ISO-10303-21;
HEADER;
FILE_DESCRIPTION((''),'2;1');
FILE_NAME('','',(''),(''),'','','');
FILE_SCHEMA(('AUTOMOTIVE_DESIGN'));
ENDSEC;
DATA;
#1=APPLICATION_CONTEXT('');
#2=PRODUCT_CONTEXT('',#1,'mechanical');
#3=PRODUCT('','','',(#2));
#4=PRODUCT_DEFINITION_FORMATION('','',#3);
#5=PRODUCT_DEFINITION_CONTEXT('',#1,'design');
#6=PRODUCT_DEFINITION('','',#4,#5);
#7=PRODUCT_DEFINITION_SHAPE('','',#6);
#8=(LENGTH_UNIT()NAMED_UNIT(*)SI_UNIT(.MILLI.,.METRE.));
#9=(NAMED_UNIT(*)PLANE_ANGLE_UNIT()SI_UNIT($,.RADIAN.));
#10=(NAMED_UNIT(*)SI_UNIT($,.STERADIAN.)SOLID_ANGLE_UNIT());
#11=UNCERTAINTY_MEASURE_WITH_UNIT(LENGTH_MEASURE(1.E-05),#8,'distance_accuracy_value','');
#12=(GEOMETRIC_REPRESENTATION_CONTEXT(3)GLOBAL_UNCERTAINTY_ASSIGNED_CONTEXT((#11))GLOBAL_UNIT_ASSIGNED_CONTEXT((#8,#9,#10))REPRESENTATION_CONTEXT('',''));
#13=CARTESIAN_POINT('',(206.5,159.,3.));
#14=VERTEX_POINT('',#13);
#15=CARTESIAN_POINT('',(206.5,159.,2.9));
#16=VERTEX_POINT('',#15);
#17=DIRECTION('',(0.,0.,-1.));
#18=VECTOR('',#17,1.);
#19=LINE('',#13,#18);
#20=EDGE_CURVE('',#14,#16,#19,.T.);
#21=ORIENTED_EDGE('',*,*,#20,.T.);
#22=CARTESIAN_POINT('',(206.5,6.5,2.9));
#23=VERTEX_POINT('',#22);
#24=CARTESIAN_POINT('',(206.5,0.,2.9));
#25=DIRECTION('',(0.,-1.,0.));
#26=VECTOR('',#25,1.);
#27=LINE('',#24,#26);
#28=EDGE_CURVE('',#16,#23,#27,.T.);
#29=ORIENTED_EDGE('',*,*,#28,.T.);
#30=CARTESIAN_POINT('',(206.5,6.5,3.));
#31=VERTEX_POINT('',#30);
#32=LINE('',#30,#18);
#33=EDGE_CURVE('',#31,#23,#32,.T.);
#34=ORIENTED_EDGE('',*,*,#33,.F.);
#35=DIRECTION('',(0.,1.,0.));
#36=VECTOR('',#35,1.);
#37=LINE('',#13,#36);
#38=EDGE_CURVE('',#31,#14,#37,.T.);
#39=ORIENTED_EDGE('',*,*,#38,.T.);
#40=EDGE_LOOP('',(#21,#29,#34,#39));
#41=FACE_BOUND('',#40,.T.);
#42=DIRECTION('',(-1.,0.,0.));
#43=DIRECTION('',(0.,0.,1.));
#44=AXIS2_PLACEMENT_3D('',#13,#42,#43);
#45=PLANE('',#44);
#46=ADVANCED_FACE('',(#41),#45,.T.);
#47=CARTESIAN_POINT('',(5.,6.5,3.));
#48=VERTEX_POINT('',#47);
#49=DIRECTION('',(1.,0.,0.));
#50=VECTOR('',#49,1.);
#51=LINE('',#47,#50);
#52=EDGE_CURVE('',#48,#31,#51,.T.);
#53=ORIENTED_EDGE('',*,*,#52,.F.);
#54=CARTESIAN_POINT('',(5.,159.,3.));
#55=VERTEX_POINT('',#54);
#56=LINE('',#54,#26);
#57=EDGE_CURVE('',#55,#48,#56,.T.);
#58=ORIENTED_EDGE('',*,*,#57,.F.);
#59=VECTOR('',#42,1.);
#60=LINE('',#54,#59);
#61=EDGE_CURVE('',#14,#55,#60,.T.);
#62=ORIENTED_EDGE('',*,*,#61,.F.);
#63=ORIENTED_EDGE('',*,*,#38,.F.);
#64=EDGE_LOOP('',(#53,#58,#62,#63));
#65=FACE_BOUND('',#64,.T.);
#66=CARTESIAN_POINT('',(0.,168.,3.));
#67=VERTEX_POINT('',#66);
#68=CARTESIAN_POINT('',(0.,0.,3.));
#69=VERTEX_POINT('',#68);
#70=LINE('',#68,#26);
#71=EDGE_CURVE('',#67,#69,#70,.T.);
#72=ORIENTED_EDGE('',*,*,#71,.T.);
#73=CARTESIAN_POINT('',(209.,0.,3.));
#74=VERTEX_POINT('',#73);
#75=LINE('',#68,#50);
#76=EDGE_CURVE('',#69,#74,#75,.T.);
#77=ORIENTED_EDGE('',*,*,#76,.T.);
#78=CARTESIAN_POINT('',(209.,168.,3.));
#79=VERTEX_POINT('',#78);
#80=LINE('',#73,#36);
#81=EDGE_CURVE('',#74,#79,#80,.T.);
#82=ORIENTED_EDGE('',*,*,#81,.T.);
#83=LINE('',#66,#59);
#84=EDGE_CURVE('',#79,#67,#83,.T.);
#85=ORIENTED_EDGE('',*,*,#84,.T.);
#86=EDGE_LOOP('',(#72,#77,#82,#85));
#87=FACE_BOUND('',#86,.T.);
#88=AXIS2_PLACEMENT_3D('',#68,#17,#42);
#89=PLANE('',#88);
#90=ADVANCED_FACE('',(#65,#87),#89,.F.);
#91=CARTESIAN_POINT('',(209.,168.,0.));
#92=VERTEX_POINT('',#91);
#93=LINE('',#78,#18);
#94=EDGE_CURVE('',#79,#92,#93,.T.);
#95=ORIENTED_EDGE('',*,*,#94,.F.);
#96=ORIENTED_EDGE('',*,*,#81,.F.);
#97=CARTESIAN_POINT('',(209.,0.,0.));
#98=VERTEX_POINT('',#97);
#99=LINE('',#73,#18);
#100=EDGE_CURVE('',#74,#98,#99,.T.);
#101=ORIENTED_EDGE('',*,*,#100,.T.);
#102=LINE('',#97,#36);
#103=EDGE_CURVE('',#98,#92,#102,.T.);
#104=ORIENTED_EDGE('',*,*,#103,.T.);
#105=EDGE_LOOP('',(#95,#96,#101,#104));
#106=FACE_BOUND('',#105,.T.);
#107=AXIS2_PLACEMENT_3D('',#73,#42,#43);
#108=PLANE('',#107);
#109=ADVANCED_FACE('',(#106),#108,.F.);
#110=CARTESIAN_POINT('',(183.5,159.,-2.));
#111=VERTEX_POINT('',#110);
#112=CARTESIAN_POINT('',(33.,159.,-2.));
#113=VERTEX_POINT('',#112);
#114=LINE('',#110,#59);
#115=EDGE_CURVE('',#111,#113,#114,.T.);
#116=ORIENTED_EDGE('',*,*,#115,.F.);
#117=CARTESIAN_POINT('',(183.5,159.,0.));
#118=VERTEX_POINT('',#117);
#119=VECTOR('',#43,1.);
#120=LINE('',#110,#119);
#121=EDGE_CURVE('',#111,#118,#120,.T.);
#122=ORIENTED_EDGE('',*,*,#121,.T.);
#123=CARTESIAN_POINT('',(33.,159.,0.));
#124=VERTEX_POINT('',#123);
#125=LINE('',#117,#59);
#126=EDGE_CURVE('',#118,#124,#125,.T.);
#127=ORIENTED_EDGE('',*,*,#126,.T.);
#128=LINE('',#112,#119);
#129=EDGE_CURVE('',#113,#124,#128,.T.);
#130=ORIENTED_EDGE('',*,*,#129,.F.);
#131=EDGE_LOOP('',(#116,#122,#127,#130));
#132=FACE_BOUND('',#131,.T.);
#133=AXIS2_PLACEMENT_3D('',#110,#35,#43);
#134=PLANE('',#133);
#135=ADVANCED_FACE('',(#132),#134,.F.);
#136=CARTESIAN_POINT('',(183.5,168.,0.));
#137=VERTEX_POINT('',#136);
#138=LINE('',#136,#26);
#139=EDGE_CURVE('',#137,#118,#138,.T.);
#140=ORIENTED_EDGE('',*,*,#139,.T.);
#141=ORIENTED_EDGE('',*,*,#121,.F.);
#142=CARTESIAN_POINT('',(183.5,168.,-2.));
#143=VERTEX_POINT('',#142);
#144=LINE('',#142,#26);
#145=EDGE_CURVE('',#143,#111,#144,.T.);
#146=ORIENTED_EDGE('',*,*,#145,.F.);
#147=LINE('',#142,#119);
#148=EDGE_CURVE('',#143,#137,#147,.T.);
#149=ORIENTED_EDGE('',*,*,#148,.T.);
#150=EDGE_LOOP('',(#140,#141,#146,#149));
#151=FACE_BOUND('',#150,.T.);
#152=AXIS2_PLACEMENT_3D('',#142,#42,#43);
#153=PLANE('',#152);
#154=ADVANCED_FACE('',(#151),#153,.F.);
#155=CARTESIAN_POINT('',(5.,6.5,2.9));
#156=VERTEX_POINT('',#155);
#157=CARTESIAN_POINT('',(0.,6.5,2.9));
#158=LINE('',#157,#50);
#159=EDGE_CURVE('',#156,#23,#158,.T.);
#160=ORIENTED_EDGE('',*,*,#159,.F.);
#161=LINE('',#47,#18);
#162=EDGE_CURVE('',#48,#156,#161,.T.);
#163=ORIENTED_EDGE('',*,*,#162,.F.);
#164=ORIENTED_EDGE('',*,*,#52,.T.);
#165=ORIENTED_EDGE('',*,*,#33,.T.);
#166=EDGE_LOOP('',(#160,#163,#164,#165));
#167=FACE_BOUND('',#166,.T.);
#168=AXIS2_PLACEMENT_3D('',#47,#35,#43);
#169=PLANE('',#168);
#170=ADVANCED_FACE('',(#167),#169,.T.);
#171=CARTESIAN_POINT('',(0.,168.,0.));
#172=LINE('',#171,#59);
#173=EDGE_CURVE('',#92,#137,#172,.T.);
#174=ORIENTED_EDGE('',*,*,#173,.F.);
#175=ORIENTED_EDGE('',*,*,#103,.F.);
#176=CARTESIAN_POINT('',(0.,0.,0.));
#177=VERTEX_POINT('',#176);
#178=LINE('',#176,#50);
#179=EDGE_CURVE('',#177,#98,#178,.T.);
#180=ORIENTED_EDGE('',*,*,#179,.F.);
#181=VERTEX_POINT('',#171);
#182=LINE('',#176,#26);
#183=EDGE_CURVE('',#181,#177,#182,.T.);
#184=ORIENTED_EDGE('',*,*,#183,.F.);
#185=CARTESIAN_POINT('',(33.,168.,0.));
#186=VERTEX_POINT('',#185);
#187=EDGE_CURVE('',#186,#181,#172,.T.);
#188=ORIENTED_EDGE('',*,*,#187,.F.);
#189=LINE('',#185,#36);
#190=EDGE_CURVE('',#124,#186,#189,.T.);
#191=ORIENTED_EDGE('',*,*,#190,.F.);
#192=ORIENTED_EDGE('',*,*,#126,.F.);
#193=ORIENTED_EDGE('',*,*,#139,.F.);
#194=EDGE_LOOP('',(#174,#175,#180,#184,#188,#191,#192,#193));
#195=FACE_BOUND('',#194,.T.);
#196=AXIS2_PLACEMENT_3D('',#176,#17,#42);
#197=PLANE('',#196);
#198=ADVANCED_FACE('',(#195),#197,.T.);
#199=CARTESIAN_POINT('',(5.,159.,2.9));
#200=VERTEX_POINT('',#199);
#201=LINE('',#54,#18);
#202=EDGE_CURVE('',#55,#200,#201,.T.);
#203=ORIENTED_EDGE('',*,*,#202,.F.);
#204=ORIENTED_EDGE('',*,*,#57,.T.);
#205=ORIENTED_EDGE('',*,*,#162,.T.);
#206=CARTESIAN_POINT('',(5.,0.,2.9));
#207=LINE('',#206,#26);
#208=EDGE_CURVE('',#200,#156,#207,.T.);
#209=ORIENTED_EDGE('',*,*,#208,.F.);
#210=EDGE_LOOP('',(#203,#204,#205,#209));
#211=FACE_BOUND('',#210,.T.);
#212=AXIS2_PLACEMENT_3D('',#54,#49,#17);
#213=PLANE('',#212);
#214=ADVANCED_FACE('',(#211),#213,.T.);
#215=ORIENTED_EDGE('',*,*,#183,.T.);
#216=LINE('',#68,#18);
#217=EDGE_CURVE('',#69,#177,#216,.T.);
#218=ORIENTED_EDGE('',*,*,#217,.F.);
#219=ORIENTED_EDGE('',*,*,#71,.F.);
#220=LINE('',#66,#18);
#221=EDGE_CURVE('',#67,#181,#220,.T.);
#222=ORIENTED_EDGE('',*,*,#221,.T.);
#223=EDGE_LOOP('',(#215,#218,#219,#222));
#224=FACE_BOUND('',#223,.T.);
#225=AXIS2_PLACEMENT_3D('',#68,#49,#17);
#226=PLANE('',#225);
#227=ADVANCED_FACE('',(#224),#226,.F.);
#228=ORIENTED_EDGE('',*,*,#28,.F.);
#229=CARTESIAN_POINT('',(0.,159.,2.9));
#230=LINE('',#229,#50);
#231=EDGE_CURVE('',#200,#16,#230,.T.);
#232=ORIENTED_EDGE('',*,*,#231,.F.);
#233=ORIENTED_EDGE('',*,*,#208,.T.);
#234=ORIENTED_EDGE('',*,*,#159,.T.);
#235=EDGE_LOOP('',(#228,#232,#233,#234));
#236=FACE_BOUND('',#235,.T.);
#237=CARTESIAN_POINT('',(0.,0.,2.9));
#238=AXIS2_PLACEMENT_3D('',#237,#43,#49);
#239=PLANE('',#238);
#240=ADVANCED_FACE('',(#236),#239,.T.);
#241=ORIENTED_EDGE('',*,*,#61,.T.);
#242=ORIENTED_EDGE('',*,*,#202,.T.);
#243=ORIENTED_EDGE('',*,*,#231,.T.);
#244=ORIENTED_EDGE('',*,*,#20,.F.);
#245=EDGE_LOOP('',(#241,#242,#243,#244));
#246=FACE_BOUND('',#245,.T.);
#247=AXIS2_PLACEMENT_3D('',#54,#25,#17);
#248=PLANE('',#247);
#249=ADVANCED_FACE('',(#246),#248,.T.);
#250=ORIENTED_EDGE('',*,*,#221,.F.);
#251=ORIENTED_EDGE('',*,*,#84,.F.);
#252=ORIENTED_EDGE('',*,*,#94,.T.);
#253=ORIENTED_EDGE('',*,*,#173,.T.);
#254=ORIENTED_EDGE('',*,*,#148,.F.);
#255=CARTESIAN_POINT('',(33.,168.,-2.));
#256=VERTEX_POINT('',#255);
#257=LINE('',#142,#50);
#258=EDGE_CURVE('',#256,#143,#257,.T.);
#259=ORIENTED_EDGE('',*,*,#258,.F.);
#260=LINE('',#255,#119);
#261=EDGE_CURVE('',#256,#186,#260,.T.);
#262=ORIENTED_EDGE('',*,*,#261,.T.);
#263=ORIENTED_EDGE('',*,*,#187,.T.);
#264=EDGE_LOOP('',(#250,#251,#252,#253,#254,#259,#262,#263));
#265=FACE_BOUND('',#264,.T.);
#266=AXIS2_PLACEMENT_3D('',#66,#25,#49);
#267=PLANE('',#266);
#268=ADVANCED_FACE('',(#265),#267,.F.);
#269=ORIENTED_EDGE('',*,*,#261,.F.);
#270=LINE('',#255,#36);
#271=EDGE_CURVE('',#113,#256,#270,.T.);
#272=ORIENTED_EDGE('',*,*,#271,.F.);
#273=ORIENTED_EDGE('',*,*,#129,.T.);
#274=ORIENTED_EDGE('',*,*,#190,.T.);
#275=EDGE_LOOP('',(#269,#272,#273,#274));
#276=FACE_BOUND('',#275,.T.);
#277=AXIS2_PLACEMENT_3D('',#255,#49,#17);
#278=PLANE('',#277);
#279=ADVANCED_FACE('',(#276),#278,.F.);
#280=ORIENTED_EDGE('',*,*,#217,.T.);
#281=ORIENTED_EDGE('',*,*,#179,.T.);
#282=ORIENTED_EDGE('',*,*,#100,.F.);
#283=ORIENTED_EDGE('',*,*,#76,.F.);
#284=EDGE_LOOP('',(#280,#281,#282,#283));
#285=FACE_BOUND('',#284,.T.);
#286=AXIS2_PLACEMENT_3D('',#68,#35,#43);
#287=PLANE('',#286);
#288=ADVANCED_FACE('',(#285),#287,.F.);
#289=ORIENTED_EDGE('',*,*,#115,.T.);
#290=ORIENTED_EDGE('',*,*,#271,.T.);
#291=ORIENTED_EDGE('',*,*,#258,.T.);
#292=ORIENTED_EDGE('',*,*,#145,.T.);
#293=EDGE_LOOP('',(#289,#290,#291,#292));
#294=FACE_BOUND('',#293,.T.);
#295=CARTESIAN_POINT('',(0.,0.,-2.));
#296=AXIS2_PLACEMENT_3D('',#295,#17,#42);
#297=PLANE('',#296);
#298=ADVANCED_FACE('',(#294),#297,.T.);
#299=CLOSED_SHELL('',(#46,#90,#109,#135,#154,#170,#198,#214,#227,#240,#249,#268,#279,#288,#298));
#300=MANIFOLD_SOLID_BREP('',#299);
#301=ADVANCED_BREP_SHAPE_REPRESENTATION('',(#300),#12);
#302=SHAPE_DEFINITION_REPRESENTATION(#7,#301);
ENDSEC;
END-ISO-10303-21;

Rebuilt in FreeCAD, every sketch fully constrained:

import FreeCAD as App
import Part
import Sketcher
from FreeCAD import Vector

doc = App.newDocument("Part")
params = doc.addObject("Spreadsheet::Sheet", "Params")
for row, (alias, value) in enumerate([
    ("sketch1_width", "209 mm"),
    ("sketch1_height", "168 mm"),
    ("sketch1_width2", "201.5 mm"),
    ("sketch1_height2", "152.5 mm"),
    ("pad1_length", "3 mm"),
    ("sketch2_width", "201.5 mm"),
    ("sketch2_height", "152.5 mm"),
    ("pad2_length", "2.9 mm"),
    ("sketch3_height", "9 mm"),
    ("sketch3_width", "150.5 mm"),
    ("pad3_length", "2 mm"),
], start=1):
    params.set(f"A{row}", alias)
    params.set(f"B{row}", "=" + value)
    params.setAlias(f"B{row}", alias)

body = doc.addObject("PartDesign::Body", "Body")

sketch1 = body.newObject("Sketcher::SketchObject", "Sketch")
sketch1.AttachmentSupport = (doc.getObject("XY_Plane"), [""])
sketch1.MapMode = "FlatFace"
sketch1.addGeometry([
    Part.LineSegment(Vector(0, 168, 0), Vector(0, 0, 0)),
    Part.LineSegment(Vector(0, 0, 0), Vector(209, 0, 0)),
    Part.LineSegment(Vector(209, 0, 0), Vector(209, 168, 0)),
    Part.LineSegment(Vector(209, 168, 0), Vector(0, 168, 0)),
    Part.LineSegment(Vector(206, 6, 0), Vector(5, 6, 0)),
    Part.LineSegment(Vector(5, 6, 0), Vector(5, 159, 0)),
    Part.LineSegment(Vector(5, 159, 0), Vector(206, 159, 0)),
    Part.LineSegment(Vector(206, 159, 0), Vector(206, 6, 0)),
], False)
sketch1.addConstraint([
    Sketcher.Constraint("Coincident", 0, 2, 1, 1),
    Sketcher.Constraint("Coincident", 1, 2, 2, 1),
    Sketcher.Constraint("Coincident", 2, 2, 3, 1),
    Sketcher.Constraint("Coincident", 3, 2, 0, 1),
    Sketcher.Constraint("Coincident", 4, 2, 5, 1),
    Sketcher.Constraint("Coincident", 5, 2, 6, 1),
    Sketcher.Constraint("Coincident", 6, 2, 7, 1),
    Sketcher.Constraint("Coincident", 7, 2, 4, 1),
    Sketcher.Constraint("Vertical", 0),
    Sketcher.Constraint("Horizontal", 1),
    Sketcher.Constraint("Vertical", 2),
    Sketcher.Constraint("Horizontal", 3),
    Sketcher.Constraint("Horizontal", 4),
    Sketcher.Constraint("Vertical", 5),
    Sketcher.Constraint("Horizontal", 6),
    Sketcher.Constraint("Vertical", 7),
    Sketcher.Constraint("Coincident", 0, 2, -1, 1),
    Sketcher.Constraint("DistanceX", 1, 1, 1, 2, 209.0),
    Sketcher.Constraint("DistanceY", 0, 2, 0, 1, 168.0),
    Sketcher.Constraint("DistanceX", 4, 2, 4, 1, 201.5),
    Sketcher.Constraint("DistanceY", 5, 1, 5, 2, 152.5),
    Sketcher.Constraint("DistanceX", -1, 1, 4, 2, 5.0),
    Sketcher.Constraint("DistanceY", -1, 1, 5, 2, 159.0),
])
sketch1.setExpression("Constraints[17]", "Params.sketch1_width")
sketch1.setExpression("Constraints[18]", "Params.sketch1_height")
sketch1.setExpression("Constraints[19]", "Params.sketch1_width2")
sketch1.setExpression("Constraints[20]", "Params.sketch1_height2")
pad1 = body.newObject("PartDesign::Pad", "Pad")
pad1.Profile = sketch1
pad1.setExpression("Length", "Params.pad1_length")

sketch2 = body.newObject("Sketcher::SketchObject", "Sketch001")
sketch2.AttachmentSupport = (doc.getObject("XY_Plane"), [""])
sketch2.MapMode = "FlatFace"
sketch2.addGeometry([
    Part.LineSegment(Vector(5, 159, 0), Vector(5, 6, 0)),
    Part.LineSegment(Vector(5, 6, 0), Vector(206, 6, 0)),
    Part.LineSegment(Vector(206, 6, 0), Vector(206, 159, 0)),
    Part.LineSegment(Vector(206, 159, 0), Vector(5, 159, 0)),
], False)
sketch2.addConstraint([
    Sketcher.Constraint("Coincident", 0, 2, 1, 1),
    Sketcher.Constraint("Coincident", 1, 2, 2, 1),
    Sketcher.Constraint("Coincident", 2, 2, 3, 1),
    Sketcher.Constraint("Coincident", 3, 2, 0, 1),
    Sketcher.Constraint("Vertical", 0),
    Sketcher.Constraint("Horizontal", 1),
    Sketcher.Constraint("Vertical", 2),
    Sketcher.Constraint("Horizontal", 3),
    Sketcher.Constraint("DistanceX", 1, 1, 1, 2, 201.5),
    Sketcher.Constraint("DistanceY", 0, 2, 0, 1, 152.5),
    Sketcher.Constraint("DistanceX", -1, 1, 0, 2, 5.0),
    Sketcher.Constraint("DistanceY", -1, 1, 2, 2, 159.0),
])
sketch2.setExpression("Constraints[8]", "Params.sketch2_width")
sketch2.setExpression("Constraints[9]", "Params.sketch2_height")
pad2 = body.newObject("PartDesign::Pad", "Pad001")
pad2.Profile = sketch2
pad2.setExpression("Length", "Params.pad2_length")

sketch3 = body.newObject("Sketcher::SketchObject", "Sketch002")
sketch3.AttachmentSupport = (doc.getObject("XY_Plane"), [""])
sketch3.MapMode = "FlatFace"
sketch3.addGeometry([
    Part.LineSegment(Vector(184, 168, 0), Vector(184, 159, 0)),
    Part.LineSegment(Vector(184, 159, 0), Vector(33, 159, 0)),
    Part.LineSegment(Vector(33, 159, 0), Vector(33, 168, 0)),
    Part.LineSegment(Vector(33, 168, 0), Vector(184, 168, 0)),
], False)
sketch3.addConstraint([
    Sketcher.Constraint("Coincident", 0, 2, 1, 1),
    Sketcher.Constraint("Coincident", 1, 2, 2, 1),
    Sketcher.Constraint("Coincident", 2, 2, 3, 1),
    Sketcher.Constraint("Coincident", 3, 2, 0, 1),
    Sketcher.Constraint("Vertical", 0),
    Sketcher.Constraint("Horizontal", 1),
    Sketcher.Constraint("Vertical", 2),
    Sketcher.Constraint("Horizontal", 3),
    Sketcher.Constraint("DistanceY", 0, 2, 0, 1, 9.0),
    Sketcher.Constraint("DistanceX", 1, 2, 1, 1, 150.5),
    Sketcher.Constraint("DistanceY", -1, 1, 0, 2, 159.0),
    Sketcher.Constraint("DistanceX", -1, 1, 1, 2, 33.0),
])
sketch3.setExpression("Constraints[8]", "Params.sketch3_height")
sketch3.setExpression("Constraints[9]", "Params.sketch3_width")
pad3 = body.newObject("PartDesign::Pad", "Pad002")
pad3.Profile = sketch3
pad3.setExpression("Length", "Params.pad3_length")
pad3.Reversed = True

doc.recompute()
